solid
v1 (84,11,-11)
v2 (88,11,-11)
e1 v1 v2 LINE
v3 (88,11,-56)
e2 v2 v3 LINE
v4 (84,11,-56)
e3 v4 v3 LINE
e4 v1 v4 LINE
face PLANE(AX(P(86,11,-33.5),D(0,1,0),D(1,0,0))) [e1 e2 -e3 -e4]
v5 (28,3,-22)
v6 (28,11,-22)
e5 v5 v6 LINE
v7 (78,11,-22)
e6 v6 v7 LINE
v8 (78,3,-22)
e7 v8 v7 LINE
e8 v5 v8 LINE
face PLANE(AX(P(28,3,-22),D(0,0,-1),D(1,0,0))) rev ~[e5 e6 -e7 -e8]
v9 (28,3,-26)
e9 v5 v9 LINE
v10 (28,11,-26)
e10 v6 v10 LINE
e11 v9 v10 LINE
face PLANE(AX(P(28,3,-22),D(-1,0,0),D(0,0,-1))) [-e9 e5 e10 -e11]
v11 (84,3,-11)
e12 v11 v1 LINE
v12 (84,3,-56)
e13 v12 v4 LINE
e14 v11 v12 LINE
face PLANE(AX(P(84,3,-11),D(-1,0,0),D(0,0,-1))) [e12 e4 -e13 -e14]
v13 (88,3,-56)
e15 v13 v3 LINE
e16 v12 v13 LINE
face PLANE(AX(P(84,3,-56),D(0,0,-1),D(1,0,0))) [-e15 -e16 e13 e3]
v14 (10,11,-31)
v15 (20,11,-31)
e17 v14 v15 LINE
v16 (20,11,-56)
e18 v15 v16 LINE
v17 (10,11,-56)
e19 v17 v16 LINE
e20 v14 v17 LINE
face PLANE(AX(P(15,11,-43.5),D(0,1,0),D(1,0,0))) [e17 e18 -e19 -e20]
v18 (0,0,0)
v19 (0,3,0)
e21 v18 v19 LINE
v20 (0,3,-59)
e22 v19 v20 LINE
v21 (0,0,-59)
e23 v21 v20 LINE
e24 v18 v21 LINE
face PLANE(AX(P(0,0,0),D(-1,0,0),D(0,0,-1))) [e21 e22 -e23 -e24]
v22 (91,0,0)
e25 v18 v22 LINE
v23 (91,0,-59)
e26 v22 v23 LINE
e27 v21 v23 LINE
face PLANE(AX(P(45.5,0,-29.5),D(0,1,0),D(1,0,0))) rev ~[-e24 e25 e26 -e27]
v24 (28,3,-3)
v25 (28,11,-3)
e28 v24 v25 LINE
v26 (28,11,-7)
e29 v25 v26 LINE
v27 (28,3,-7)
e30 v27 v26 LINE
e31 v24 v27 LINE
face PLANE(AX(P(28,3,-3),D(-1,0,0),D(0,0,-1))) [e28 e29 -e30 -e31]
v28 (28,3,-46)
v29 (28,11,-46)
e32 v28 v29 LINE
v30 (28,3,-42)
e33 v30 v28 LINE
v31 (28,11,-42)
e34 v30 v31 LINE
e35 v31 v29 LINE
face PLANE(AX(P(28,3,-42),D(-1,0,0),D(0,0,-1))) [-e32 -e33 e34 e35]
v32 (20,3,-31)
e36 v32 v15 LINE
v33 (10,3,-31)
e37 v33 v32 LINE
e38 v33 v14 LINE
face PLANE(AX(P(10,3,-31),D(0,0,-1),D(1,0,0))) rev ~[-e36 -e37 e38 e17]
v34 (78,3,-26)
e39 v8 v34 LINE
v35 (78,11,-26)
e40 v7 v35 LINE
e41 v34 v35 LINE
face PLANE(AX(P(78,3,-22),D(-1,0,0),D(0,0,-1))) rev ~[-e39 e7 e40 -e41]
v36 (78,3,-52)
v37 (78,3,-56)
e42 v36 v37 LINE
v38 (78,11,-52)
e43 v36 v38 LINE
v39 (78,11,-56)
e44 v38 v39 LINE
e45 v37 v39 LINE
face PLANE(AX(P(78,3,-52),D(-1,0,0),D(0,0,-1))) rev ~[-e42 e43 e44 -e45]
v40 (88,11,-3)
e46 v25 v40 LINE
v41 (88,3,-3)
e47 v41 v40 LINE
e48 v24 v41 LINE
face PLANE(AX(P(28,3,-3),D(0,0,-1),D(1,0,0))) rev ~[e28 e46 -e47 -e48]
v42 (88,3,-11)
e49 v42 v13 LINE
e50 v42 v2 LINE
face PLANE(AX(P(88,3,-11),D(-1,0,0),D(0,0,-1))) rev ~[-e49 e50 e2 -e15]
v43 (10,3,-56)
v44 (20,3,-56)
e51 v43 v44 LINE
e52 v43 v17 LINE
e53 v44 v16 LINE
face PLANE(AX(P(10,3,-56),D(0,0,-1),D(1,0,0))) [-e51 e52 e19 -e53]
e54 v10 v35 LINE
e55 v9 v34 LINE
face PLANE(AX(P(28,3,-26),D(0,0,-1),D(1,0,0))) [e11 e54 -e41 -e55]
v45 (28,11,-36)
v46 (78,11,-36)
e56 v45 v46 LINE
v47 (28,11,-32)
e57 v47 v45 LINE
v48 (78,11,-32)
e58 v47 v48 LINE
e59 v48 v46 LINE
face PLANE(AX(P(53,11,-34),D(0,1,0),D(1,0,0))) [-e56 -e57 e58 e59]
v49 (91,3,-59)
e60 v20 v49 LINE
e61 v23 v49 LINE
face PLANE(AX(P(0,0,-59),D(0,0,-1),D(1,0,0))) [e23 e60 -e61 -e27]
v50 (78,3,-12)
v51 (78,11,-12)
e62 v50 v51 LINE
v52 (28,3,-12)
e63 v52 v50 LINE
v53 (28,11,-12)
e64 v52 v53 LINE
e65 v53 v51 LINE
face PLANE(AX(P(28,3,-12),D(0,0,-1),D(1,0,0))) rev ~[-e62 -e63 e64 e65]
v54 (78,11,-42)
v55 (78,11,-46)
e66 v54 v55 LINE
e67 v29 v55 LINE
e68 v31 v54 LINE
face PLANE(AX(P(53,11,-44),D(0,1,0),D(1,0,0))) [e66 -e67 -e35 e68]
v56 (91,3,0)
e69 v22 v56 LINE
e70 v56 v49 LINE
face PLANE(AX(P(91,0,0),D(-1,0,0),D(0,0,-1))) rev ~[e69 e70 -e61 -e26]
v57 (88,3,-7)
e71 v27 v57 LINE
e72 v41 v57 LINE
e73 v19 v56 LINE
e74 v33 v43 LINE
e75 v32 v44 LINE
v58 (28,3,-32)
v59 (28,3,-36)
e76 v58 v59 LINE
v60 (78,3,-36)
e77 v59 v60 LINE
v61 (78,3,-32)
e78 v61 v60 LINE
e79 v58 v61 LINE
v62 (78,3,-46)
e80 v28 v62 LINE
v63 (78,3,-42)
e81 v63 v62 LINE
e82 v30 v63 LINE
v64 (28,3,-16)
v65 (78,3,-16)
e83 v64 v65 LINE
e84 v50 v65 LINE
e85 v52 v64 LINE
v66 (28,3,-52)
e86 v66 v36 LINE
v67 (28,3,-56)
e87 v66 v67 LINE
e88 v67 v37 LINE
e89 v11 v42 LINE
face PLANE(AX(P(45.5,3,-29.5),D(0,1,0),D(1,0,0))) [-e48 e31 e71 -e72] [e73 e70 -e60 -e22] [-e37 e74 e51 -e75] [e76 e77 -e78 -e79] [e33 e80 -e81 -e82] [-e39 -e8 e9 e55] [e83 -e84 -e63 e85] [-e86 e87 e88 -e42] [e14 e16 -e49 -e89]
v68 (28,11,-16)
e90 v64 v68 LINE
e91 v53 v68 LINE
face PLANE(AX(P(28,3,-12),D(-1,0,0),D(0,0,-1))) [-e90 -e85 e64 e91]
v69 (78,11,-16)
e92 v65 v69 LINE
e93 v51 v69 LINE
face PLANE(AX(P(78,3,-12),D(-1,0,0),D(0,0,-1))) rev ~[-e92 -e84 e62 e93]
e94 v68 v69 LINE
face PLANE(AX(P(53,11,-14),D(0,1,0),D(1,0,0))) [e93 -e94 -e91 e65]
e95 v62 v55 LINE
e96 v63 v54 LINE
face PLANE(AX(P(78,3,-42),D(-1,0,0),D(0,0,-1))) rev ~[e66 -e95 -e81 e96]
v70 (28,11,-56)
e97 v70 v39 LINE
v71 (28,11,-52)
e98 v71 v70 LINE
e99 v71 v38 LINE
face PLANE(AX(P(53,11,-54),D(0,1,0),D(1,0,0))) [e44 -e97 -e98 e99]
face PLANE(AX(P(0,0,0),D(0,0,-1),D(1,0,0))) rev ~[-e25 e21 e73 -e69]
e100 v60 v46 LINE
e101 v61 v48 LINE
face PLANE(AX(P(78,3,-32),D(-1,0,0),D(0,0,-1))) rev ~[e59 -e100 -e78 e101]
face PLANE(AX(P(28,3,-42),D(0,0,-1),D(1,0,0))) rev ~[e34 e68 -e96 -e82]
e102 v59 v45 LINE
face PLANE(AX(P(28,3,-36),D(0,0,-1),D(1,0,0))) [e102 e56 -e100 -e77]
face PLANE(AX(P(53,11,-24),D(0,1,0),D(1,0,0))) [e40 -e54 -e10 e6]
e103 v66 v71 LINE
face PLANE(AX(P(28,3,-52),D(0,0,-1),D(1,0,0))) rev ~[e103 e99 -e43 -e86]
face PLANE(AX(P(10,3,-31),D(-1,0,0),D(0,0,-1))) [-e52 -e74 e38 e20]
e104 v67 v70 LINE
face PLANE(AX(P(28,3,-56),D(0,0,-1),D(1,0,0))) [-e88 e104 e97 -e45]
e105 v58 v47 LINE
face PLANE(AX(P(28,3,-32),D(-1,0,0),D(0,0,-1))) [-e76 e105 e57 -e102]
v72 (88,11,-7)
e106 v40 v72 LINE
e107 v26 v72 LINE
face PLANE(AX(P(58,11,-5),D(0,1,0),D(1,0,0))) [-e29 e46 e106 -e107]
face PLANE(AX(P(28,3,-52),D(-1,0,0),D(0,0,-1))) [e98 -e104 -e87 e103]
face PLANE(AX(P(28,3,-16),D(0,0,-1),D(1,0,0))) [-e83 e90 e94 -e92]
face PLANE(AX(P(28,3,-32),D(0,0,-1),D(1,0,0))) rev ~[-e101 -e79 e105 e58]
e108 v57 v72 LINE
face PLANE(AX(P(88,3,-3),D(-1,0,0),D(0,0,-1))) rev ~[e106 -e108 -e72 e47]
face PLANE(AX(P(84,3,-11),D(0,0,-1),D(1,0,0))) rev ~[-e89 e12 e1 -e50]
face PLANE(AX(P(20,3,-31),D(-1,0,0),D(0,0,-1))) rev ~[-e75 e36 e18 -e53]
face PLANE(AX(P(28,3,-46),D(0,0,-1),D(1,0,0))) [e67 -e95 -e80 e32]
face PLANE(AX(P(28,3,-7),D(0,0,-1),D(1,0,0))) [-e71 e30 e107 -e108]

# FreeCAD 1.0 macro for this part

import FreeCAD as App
import Part
import Sketcher
Q = App.Units.Quantity

doc = App.newDocument("Part")
body = doc.addObject("PartDesign::Body", "Body")

sketch1 = body.newObject("Sketcher::SketchObject", "Sketch")
sketch1.AttachmentSupport = (doc.getObject("XZ_Plane"), [""])
sketch1.MapMode = "FlatFace"
sketch1.addGeometry([
    Part.LineSegment(App.Vector(0, -59, 0), App.Vector(0, 0, 0)),
    Part.LineSegment(App.Vector(0, 0, 0), App.Vector(91, 0, 0)),
    Part.LineSegment(App.Vector(91, 0, 0), App.Vector(91, -59, 0)),
    Part.LineSegment(App.Vector(91, -59, 0), App.Vector(0, -59, 0)),
], False)
sketch1.addConstraint([
    Sketcher.Constraint("Coincident", 0, 2, 1, 1),
    Sketcher.Constraint("Coincident", 1, 2, 2, 1),
    Sketcher.Constraint("Coincident", 2, 2, 3, 1),
    Sketcher.Constraint("Coincident", 3, 2, 0, 1),
    Sketcher.Constraint("Vertical", 0),
    Sketcher.Constraint("Horizontal", 1),
    Sketcher.Constraint("Vertical", 2),
    Sketcher.Constraint("Horizontal", 3),
    Sketcher.Constraint("Coincident", 0, 2, -1, 1),
    Sketcher.Constraint("DistanceX", 1, 1, 1, 2, Q("91 mm")),
    Sketcher.Constraint("DistanceY", 0, 1, 0, 2, Q("59 mm")),
])
pad1 = body.newObject("PartDesign::Pad", "Pad")
pad1.Profile = sketch1
pad1.Length = 3
pad1.Reversed = True

sketch2 = body.newObject("Sketcher::SketchObject", "Sketch001")
sketch2.AttachmentSupport = (doc.getObject("XZ_Plane"), [""])
sketch2.MapMode = "FlatFace"
sketch2.AttachmentOffset = App.Placement(App.Vector(0, 0, -3), App.Rotation())
sketch2.addGeometry([
    Part.LineSegment(App.Vector(10, -56, 0), App.Vector(10, -31, 0)),
    Part.LineSegment(App.Vector(10, -31, 0), App.Vector(20, -31, 0)),
    Part.LineSegment(App.Vector(20, -31, 0), App.Vector(20, -56, 0)),
    Part.LineSegment(App.Vector(20, -56, 0), App.Vector(10, -56, 0)),
    Part.LineSegment(App.Vector(28, -56, 0), App.Vector(28, -52, 0)),
    Part.LineSegment(App.Vector(28, -52, 0), App.Vector(78, -52, 0)),
    Part.LineSegment(App.Vector(78, -52, 0), App.Vector(78, -56, 0)),
    Part.LineSegment(App.Vector(78, -56, 0), App.Vector(28, -56, 0)),
    Part.LineSegment(App.Vector(84, -56, 0), App.Vector(84, -11, 0)),
    Part.LineSegment(App.Vector(84, -11, 0), App.Vector(88, -11, 0)),
    Part.LineSegment(App.Vector(88, -11, 0), App.Vector(88, -56, 0)),
    Part.LineSegment(App.Vector(88, -56, 0), App.Vector(84, -56, 0)),
    Part.LineSegment(App.Vector(28, -7, 0), App.Vector(28, -3, 0)),
    Part.LineSegment(App.Vector(28, -3, 0), App.Vector(88, -3, 0)),
    Part.LineSegment(App.Vector(88, -3, 0), App.Vector(88, -7, 0)),
    Part.LineSegment(App.Vector(88, -7, 0), App.Vector(28, -7, 0)),
    Part.LineSegment(App.Vector(28, -46, 0), App.Vector(28, -42, 0)),
    Part.LineSegment(App.Vector(28, -42, 0), App.Vector(78, -42, 0)),
    Part.LineSegment(App.Vector(78, -42, 0), App.Vector(78, -46, 0)),
    Part.LineSegment(App.Vector(78, -46, 0), App.Vector(28, -46, 0)),
    Part.LineSegment(App.Vector(28, -36, 0), App.Vector(28, -32, 0)),
    Part.LineSegment(App.Vector(28, -32, 0), App.Vector(78, -32, 0)),
    Part.LineSegment(App.Vector(78, -32, 0), App.Vector(78, -36, 0)),
    Part.LineSegment(App.Vector(78, -36, 0), App.Vector(28, -36, 0)),
    Part.LineSegment(App.Vector(28, -26, 0), App.Vector(28, -22, 0)),
    Part.LineSegment(App.Vector(28, -22, 0), App.Vector(78, -22, 0)),
    Part.LineSegment(App.Vector(78, -22, 0), App.Vector(78, -26, 0)),
    Part.LineSegment(App.Vector(78, -26, 0), App.Vector(28, -26, 0)),
    Part.LineSegment(App.Vector(28, -16, 0), App.Vector(28, -12, 0)),
    Part.LineSegment(App.Vector(28, -12, 0), App.Vector(78, -12, 0)),
    Part.LineSegment(App.Vector(78, -12, 0), App.Vector(78, -16, 0)),
    Part.LineSegment(App.Vector(78, -16, 0), App.Vector(28, -16, 0)),
], False)
sketch2.addConstraint([
    Sketcher.Constraint("Coincident", 0, 2, 1, 1),
    Sketcher.Constraint("Coincident", 1, 2, 2, 1),
    Sketcher.Constraint("Coincident", 2, 2, 3, 1),
    Sketcher.Constraint("Coincident", 3, 2, 0, 1),
    Sketcher.Constraint("Coincident", 4, 2, 5, 1),
    Sketcher.Constraint("Coincident", 5, 2, 6, 1),
    Sketcher.Constraint("Coincident", 6, 2, 7, 1),
    Sketcher.Constraint("Coincident", 7, 2, 4, 1),
    Sketcher.Constraint("Coincident", 8, 2, 9, 1),
    Sketcher.Constraint("Coincident", 9, 2, 10, 1),
    Sketcher.Constraint("Coincident", 10, 2, 11, 1),
    Sketcher.Constraint("Coincident", 11, 2, 8, 1),
    Sketcher.Constraint("Coincident", 12, 2, 13, 1),
    Sketcher.Constraint("Coincident", 13, 2, 14, 1),
    Sketcher.Constraint("Coincident", 14, 2, 15, 1),
    Sketcher.Constraint("Coincident", 15, 2, 12, 1),
    Sketcher.Constraint("Coincident", 16, 2, 17, 1),
    Sketcher.Constraint("Coincident", 17, 2, 18, 1),
    Sketcher.Constraint("Coincident", 18, 2, 19, 1),
    Sketcher.Constraint("Coincident", 19, 2, 16, 1),
    Sketcher.Constraint("Coincident", 20, 2, 21, 1),
    Sketcher.Constraint("Coincident", 21, 2, 22, 1),
    Sketcher.Constraint("Coincident", 22, 2, 23, 1),
    Sketcher.Constraint("Coincident", 23, 2, 20, 1),
    Sketcher.Constraint("Coincident", 24, 2, 25, 1),
    Sketcher.Constraint("Coincident", 25, 2, 26, 1),
    Sketcher.Constraint("Coincident", 26, 2, 27, 1),
    Sketcher.Constraint("Coincident", 27, 2, 24, 1),
    Sketcher.Constraint("Coincident", 28, 2, 29, 1),
    Sketcher.Constraint("Coincident", 29, 2, 30, 1),
    Sketcher.Constraint("Coincident", 30, 2, 31, 1),
    Sketcher.Constraint("Coincident", 31, 2, 28, 1),
    Sketcher.Constraint("Vertical", 0),
    Sketcher.Constraint("Horizontal", 1),
    Sketcher.Constraint("Vertical", 2),
    Sketcher.Constraint("Horizontal", 3),
    Sketcher.Constraint("Vertical", 4),
    Sketcher.Constraint("Horizontal", 5),
    Sketcher.Constraint("Vertical", 6),
    Sketcher.Constraint("Horizontal", 7),
    Sketcher.Constraint("Vertical", 8),
    Sketcher.Constraint("Horizontal", 9),
    Sketcher.Constraint("Vertical", 10),
    Sketcher.Constraint("Horizontal", 11),
    Sketcher.Constraint("Vertical", 12),
    Sketcher.Constraint("Horizontal", 13),
    Sketcher.Constraint("Vertical", 14),
    Sketcher.Constraint("Horizontal", 15),
    Sketcher.Constraint("Vertical", 16),
    Sketcher.Constraint("Horizontal", 17),
    Sketcher.Constraint("Vertical", 18),
    Sketcher.Constraint("Horizontal", 19),
    Sketcher.Constraint("Vertical", 20),
    Sketcher.Constraint("Horizontal", 21),
    Sketcher.Constraint("Vertical", 22),
    Sketcher.Constraint("Horizontal", 23),
    Sketcher.Constraint("Vertical", 24),
    Sketcher.Constraint("Horizontal", 25),
    Sketcher.Constraint("Vertical", 26),
    Sketcher.Constraint("Horizontal", 27),
    Sketcher.Constraint("Vertical", 28),
    Sketcher.Constraint("Horizontal", 29),
    Sketcher.Constraint("Vertical", 30),
    Sketcher.Constraint("Horizontal", 31),
    Sketcher.Constraint("Horizontal", 3, 2, 6, 2),
    Sketcher.Constraint("Horizontal", 7, 2, 10, 2),
    Sketcher.Constraint("Vertical", 7, 2, 12, 2),
    Sketcher.Constraint("Vertical", 10, 2, 13, 2),
    Sketcher.Constraint("Vertical", 15, 2, 16, 2),
    Sketcher.Constraint("Vertical", 6, 2, 17, 2),
    Sketcher.Constraint("Vertical", 19, 2, 20, 2),
    Sketcher.Constraint("Vertical", 18, 2, 21, 2),
    Sketcher.Constraint("Vertical", 23, 2, 24, 2),
    Sketcher.Constraint("Vertical", 22, 2, 25, 2),
    Sketcher.Constraint("Vertical", 27, 2, 28, 2),
    Sketcher.Constraint("Vertical", 26, 2, 29, 2),
    Sketcher.Constraint("Equal", 11, 4),
    Sketcher.Constraint("Equal", 6, 12),
    Sketcher.Constraint("Equal", 14, 16),
    Sketcher.Constraint("Equal", 18, 20),
    Sketcher.Constraint("Equal", 22, 24),
    Sketcher.Constraint("Equal", 26, 28),
    Sketcher.Constraint("DistanceX", 1, 1, 1, 2, Q("10 mm")),
    Sketcher.Constraint("DistanceX", 5, 1, 5, 2, Q("50 mm")),
    Sketcher.Constraint("DistanceX", 9, 1, 9, 2, Q("4 mm")),
    Sketcher.Constraint("DistanceX", 13, 1, 13, 2, Q("60 mm")),
    Sketcher.Constraint("DistanceY", 0, 1, 0, 2, Q("25 mm")),
    Sketcher.Constraint("DistanceY", 8, 1, 8, 2, Q("45 mm")),
    Sketcher.Constraint("DistanceX", -1, 1, 0, 2, Q("10 mm")),
    Sketcher.Constraint("DistanceY", 0, 2, -1, 1, Q("31 mm")),
    Sketcher.Constraint("DistanceX", -1, 1, 4, 2, Q("28 mm")),
    Sketcher.Constraint("DistanceY", 12, 2, -1, 1, Q("3 mm")),
    Sketcher.Constraint("DistanceY", 16, 2, -1, 1, Q("42 mm")),
    Sketcher.Constraint("DistanceY", 20, 2, -1, 1, Q("32 mm")),
    Sketcher.Constraint("DistanceY", 24, 2, -1, 1, Q("22 mm")),
    Sketcher.Constraint("DistanceY", 28, 2, -1, 1, Q("12 mm")),
])
pad2 = body.newObject("PartDesign::Pad", "Pad001")
pad2.Profile = sketch2
pad2.Length = 8
pad2.Reversed = True

doc.recompute()
